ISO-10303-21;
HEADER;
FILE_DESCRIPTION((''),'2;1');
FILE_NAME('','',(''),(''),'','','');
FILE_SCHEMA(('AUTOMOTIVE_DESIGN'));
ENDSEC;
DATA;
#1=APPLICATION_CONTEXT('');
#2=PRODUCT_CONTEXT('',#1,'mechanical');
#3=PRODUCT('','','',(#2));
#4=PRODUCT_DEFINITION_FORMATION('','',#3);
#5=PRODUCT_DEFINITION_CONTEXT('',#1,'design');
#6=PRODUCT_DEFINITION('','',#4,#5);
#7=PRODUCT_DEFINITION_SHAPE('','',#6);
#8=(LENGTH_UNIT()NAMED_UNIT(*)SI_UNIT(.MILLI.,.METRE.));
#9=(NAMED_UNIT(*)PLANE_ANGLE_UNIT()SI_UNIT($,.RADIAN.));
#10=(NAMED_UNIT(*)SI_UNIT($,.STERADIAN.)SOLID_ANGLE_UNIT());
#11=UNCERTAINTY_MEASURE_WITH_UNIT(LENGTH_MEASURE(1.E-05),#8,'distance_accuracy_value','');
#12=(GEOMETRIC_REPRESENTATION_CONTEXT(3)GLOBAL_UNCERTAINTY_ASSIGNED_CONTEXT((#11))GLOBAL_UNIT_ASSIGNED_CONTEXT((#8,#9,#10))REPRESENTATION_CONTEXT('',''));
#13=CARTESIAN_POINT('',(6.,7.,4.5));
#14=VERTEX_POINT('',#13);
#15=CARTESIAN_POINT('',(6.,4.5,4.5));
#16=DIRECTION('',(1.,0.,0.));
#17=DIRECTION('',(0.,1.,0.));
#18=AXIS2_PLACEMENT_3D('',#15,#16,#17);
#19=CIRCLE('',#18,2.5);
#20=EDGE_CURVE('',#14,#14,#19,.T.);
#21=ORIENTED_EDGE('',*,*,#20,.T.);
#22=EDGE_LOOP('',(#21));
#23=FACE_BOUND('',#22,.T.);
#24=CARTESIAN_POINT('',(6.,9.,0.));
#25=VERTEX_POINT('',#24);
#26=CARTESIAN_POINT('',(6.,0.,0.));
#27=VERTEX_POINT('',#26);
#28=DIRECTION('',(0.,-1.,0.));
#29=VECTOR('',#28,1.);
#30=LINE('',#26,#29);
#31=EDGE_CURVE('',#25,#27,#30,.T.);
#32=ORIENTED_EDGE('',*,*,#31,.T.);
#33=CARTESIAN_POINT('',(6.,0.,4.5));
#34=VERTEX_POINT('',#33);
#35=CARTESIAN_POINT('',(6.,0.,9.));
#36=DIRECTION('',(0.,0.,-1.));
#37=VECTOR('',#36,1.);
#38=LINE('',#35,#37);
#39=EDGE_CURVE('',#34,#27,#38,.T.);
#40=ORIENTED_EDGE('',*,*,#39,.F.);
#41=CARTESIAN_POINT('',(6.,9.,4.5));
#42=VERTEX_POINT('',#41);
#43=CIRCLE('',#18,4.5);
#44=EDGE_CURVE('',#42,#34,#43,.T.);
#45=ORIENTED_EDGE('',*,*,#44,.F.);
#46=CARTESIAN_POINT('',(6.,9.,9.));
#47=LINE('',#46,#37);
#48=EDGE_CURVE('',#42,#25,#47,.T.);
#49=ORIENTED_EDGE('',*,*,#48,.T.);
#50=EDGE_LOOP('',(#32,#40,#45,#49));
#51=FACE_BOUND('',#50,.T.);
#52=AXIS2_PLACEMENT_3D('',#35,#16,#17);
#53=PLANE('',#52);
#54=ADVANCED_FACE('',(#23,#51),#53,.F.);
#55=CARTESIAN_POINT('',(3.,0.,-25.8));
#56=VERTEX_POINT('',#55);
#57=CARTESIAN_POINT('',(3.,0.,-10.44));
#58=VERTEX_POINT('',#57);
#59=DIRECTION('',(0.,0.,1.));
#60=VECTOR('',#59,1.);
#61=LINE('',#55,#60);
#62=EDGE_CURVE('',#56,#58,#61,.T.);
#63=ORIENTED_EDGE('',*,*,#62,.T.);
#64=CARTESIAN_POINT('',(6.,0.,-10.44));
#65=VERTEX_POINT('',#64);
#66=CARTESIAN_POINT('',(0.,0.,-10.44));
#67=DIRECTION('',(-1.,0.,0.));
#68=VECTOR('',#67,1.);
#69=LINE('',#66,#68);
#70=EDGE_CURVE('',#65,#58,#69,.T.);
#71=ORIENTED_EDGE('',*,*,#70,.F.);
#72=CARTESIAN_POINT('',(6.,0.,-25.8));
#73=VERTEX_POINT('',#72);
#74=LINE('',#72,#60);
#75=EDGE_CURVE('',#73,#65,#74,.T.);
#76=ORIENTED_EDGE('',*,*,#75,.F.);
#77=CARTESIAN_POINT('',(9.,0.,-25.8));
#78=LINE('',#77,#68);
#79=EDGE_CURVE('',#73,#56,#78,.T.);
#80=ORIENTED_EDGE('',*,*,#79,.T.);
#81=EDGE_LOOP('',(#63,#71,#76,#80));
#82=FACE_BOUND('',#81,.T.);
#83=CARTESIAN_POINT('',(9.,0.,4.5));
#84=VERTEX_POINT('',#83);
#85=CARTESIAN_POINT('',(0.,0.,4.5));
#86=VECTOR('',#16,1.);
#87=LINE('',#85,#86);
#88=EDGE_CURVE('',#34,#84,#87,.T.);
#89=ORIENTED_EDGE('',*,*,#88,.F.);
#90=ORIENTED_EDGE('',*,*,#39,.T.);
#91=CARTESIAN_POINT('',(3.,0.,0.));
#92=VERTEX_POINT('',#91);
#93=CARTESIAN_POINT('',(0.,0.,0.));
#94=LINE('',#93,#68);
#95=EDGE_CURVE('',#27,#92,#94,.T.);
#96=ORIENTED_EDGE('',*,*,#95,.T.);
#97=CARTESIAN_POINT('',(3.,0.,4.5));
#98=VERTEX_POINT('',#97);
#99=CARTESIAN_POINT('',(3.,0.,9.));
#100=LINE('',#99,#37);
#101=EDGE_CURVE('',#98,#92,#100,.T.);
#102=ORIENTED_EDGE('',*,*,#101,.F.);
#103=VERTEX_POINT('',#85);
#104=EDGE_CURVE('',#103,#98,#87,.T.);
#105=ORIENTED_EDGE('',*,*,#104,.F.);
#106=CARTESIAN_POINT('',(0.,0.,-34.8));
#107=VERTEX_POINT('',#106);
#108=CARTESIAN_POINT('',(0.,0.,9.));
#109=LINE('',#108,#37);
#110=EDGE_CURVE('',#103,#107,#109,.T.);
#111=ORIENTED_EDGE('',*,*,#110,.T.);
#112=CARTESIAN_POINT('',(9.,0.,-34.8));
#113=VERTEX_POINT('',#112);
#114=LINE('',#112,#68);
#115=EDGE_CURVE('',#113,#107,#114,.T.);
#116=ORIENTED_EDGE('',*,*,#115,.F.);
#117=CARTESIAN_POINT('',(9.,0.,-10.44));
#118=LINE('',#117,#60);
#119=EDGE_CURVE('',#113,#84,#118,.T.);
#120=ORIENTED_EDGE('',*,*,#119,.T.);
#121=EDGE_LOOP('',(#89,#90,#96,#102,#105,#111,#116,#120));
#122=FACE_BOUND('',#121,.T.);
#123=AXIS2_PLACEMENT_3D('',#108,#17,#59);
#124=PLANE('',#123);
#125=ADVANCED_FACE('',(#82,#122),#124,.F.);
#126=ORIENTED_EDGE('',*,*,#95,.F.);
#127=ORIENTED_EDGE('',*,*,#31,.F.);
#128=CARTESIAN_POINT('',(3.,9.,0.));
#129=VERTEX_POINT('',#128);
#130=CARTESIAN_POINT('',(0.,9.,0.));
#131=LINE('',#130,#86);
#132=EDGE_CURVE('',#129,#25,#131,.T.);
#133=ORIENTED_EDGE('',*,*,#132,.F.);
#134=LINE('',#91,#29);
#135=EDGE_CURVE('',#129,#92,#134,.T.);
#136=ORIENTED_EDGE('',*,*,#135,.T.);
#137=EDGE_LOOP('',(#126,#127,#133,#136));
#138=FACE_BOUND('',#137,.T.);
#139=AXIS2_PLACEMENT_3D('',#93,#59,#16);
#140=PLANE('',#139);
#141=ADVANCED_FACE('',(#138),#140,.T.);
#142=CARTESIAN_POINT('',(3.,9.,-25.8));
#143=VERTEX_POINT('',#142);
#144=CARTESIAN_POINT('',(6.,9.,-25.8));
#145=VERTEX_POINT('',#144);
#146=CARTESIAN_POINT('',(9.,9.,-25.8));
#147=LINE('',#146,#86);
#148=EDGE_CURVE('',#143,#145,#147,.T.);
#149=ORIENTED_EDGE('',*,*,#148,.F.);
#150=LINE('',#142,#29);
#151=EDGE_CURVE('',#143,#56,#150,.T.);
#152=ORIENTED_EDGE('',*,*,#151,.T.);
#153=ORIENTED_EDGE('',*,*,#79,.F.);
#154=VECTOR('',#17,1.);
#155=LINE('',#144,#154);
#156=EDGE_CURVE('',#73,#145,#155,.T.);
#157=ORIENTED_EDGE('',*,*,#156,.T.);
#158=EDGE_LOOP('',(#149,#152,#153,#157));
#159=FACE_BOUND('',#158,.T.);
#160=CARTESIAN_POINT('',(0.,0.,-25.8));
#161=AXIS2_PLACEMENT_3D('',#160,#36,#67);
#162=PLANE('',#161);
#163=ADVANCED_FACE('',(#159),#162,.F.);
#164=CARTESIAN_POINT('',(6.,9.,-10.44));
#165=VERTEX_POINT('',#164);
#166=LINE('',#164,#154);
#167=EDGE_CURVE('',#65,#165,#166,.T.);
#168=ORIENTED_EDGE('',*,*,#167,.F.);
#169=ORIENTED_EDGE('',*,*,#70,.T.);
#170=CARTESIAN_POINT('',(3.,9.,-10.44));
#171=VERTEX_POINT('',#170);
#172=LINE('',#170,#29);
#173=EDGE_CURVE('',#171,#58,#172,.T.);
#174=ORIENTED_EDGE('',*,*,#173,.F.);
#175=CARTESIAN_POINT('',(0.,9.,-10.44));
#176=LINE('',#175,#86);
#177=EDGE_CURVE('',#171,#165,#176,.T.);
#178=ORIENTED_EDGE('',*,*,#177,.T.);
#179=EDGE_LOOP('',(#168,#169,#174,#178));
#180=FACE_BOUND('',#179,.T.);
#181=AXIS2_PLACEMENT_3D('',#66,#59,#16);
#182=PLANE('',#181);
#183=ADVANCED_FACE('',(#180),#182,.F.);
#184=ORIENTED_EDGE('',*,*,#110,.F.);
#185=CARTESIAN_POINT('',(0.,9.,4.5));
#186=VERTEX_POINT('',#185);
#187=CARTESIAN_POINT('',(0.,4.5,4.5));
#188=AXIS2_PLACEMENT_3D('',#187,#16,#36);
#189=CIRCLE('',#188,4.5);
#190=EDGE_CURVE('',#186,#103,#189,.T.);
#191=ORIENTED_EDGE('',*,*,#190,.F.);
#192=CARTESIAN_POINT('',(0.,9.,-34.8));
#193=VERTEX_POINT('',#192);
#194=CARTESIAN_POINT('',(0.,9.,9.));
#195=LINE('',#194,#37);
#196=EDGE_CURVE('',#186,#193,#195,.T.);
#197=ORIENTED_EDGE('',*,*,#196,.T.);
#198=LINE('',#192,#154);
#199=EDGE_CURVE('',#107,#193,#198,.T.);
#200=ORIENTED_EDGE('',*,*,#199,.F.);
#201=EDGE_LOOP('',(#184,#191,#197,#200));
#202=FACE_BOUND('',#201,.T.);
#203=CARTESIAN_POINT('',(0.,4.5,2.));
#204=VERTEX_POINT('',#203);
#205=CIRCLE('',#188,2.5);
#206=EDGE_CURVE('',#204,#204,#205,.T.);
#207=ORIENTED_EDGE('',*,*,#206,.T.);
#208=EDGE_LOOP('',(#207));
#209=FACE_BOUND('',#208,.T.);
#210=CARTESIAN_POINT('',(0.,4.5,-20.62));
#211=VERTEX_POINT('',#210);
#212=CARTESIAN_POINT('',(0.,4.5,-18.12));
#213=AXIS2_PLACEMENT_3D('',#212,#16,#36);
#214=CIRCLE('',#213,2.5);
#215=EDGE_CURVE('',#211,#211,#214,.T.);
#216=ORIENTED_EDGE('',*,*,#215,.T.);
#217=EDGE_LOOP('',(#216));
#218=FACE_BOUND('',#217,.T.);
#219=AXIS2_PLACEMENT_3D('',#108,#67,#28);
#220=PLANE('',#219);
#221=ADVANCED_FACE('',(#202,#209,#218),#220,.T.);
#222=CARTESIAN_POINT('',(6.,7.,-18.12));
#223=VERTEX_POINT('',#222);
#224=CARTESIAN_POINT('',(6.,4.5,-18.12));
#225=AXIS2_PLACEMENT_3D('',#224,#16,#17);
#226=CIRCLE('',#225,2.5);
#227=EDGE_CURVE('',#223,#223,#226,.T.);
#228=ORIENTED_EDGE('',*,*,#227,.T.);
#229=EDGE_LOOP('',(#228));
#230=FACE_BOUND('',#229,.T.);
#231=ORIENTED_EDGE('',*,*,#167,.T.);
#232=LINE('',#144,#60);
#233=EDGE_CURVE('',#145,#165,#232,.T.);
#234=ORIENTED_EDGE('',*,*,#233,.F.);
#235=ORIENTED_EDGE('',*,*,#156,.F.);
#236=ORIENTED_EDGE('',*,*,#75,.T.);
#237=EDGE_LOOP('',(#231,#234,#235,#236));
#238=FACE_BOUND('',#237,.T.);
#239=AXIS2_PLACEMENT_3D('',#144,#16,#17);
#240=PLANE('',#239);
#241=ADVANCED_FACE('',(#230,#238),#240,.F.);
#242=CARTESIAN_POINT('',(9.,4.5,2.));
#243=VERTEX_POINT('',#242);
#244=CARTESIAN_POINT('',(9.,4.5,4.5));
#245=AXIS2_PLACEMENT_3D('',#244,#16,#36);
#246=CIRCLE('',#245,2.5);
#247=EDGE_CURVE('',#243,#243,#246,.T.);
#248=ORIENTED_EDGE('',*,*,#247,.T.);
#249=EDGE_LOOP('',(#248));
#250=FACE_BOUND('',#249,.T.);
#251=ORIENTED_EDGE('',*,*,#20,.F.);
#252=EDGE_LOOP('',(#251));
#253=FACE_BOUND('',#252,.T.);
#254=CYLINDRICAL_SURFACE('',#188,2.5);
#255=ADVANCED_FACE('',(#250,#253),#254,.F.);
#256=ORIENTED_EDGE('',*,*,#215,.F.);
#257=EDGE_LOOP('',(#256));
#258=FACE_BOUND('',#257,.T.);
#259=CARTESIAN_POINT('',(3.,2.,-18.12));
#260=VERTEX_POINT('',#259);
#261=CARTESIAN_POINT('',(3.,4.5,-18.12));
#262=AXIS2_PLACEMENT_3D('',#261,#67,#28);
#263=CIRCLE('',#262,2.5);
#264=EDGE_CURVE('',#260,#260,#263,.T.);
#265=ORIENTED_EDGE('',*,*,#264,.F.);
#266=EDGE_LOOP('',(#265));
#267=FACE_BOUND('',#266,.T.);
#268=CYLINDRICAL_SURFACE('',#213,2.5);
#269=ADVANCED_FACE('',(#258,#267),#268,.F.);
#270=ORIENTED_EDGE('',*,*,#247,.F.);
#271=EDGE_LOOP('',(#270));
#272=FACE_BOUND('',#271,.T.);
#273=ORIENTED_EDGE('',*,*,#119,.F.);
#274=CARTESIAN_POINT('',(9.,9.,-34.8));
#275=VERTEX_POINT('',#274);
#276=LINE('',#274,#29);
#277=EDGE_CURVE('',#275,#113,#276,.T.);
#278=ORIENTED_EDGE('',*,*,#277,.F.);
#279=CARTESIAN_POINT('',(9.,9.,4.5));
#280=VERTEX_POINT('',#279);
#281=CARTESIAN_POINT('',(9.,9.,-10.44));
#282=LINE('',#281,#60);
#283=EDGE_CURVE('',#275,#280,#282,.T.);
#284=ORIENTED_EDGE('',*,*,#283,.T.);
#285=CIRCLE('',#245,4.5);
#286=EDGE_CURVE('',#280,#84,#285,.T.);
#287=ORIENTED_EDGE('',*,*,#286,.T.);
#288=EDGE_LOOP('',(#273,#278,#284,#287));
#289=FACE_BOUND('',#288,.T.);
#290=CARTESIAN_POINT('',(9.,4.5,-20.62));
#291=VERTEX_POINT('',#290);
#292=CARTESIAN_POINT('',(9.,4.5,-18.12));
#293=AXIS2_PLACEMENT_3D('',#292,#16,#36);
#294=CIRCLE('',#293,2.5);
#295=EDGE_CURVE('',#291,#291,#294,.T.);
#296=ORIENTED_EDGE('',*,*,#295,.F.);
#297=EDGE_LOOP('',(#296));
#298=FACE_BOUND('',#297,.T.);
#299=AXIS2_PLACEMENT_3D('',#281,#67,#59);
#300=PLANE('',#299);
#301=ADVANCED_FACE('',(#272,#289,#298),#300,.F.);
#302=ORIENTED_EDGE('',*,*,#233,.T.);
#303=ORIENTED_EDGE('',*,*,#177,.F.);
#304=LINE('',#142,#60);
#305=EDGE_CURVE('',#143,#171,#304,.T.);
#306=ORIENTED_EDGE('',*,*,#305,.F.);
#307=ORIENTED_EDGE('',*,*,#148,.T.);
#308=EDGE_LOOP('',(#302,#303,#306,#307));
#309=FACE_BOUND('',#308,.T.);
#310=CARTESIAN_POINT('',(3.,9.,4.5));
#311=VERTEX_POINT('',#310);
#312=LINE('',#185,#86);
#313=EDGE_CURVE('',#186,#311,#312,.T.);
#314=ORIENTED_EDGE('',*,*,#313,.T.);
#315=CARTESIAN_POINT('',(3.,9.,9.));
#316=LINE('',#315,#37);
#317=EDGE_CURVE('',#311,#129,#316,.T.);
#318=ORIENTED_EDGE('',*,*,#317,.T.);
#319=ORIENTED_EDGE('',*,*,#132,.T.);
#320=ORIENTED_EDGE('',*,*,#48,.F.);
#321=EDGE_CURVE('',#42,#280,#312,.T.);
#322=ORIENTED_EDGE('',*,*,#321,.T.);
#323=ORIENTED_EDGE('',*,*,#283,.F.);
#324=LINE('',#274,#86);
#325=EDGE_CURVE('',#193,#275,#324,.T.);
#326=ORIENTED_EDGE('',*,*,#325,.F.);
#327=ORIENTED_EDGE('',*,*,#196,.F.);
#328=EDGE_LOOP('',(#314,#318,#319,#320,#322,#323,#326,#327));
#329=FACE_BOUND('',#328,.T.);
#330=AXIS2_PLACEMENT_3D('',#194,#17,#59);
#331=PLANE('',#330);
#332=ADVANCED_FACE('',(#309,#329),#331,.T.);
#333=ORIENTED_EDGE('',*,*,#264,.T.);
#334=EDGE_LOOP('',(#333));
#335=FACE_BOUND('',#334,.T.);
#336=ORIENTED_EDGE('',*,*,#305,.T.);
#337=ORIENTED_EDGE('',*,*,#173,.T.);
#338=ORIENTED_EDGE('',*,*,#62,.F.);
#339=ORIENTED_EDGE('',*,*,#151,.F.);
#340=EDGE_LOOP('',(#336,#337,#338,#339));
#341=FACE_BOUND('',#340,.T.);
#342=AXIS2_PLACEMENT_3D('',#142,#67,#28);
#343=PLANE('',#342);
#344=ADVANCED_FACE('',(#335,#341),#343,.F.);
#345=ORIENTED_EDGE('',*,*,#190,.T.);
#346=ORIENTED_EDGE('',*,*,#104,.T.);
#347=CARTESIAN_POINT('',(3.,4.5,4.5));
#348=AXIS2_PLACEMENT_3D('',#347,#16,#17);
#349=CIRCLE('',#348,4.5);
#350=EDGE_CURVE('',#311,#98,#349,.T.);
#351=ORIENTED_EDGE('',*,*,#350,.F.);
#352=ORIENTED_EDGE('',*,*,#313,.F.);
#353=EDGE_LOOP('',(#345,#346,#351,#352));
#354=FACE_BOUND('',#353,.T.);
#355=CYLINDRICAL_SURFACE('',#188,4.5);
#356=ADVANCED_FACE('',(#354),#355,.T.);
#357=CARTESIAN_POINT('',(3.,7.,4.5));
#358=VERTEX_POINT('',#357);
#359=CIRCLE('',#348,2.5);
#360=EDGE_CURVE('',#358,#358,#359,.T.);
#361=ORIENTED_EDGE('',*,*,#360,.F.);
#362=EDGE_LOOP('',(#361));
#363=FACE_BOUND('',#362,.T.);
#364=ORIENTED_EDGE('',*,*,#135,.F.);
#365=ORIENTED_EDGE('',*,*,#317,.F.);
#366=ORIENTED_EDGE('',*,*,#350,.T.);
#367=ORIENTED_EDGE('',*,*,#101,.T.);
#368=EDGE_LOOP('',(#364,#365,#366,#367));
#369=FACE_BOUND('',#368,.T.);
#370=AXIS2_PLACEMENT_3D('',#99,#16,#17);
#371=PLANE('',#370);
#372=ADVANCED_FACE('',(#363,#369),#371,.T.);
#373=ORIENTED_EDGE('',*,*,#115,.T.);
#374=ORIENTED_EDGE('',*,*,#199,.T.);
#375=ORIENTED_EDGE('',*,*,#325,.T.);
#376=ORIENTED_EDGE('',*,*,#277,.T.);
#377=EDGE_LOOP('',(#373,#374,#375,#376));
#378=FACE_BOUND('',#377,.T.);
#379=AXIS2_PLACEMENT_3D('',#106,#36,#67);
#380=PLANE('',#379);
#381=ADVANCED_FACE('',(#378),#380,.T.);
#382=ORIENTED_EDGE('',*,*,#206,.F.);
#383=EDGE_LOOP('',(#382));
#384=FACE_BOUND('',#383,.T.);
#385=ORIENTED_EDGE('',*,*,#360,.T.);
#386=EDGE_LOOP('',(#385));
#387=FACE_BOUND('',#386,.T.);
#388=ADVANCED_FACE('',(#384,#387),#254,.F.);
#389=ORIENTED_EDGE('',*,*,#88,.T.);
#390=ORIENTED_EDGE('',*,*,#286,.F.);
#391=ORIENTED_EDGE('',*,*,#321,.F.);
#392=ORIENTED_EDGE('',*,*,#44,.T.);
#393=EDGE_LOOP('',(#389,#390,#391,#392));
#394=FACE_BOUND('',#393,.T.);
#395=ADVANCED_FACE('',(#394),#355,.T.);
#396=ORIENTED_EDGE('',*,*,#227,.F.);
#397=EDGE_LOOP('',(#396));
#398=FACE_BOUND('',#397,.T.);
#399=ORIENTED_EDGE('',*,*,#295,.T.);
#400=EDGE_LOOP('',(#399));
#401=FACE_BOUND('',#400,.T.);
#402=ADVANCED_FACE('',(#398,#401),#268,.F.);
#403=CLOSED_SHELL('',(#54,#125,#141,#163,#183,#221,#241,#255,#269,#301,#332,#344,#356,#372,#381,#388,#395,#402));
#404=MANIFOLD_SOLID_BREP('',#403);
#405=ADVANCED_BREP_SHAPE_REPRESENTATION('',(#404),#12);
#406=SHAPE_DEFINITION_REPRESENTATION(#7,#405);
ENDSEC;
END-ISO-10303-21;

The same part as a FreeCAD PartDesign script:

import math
import FreeCAD as App
import Part
import Sketcher

V = App.Vector


def add_polygon(sketch, points):
    """Adds a closed chain of lines whose ends are joined by coincident constraints."""
    first, n = sketch.GeometryCount, len(points)
    for a, b in zip(points, points[1:] + points[:1]):
        sketch.addGeometry(Part.LineSegment(App.Vector(*a, 0), App.Vector(*b, 0)), False)
    for i in range(n):
        sketch.addConstraint(Sketcher.Constraint("Coincident", first + i, 2, first + (i + 1) % n, 1))

doc = App.newDocument("Part")
body = doc.addObject("PartDesign::Body", "Body")

# Sketch on XY plane
sketch1 = body.newObject("Sketcher::SketchObject", "Sketch")
sketch1.AttachmentSupport = (doc.getObject("XY_Plane"), [""])
sketch1.MapMode = "FlatFace"
add_polygon(sketch1, [(0, 9), (0, 0), (3, 0), (3, 9)])  # lines 0-3
sketch1.addConstraint([
    Sketcher.Constraint("Vertical", 0),
    Sketcher.Constraint("Horizontal", 1),
    Sketcher.Constraint("Vertical", 2),
    Sketcher.Constraint("Horizontal", 3),
    Sketcher.Constraint("Coincident", 0, 2, -1, 1),
    Sketcher.Constraint("DistanceX", 1, 1, 1, 2, 3.0),
    Sketcher.Constraint("DistanceY", 0, 2, 0, 1, 9.0),
])
pad1 = body.newObject("PartDesign::Pad", "Pad")
pad1.Profile = sketch1
pad1.Length = 9
body2 = doc.addObject("PartDesign::Body", "Body001")

# Sketch on XY plane
sketch2 = body2.newObject("Sketcher::SketchObject", "Sketch001")
sketch2.AttachmentSupport = (doc.getObject("XY_Plane001"), [""])
sketch2.MapMode = "FlatFace"
add_polygon(sketch2, [(6, 9), (6, 0), (9, 0), (9, 9)])  # lines 0-3
sketch2.addConstraint([
    Sketcher.Constraint("Vertical", 0),
    Sketcher.Constraint("Horizontal", 1),
    Sketcher.Constraint("Vertical", 2),
    Sketcher.Constraint("Horizontal", 3),
    Sketcher.Constraint("PointOnObject", 0, 2, -1),
    Sketcher.Constraint("DistanceX", 1, 1, 1, 2, 3.0),
    Sketcher.Constraint("DistanceY", 0, 2, 0, 1, 9.0),
    Sketcher.Constraint("DistanceX", -1, 1, 0, 2, 6.0),
])
pad2 = body2.newObject("PartDesign::Pad", "Pad001")
pad2.Profile = sketch2
pad2.Length = 9
body.AllowCompound = True
doc.recompute()

boolean = body.newObject("PartDesign::Boolean", "Boolean")
boolean.Type = "Fuse"
boolean.addObjects([body2])

# Sketch on XY plane
sketch3 = body.newObject("Sketcher::SketchObject", "Sketch002")
sketch3.AttachmentSupport = (doc.getObject("XY_Plane"), [""])
sketch3.MapMode = "FlatFace"
add_polygon(sketch3, [(9, 9), (9, 0), (0, 0), (0, 9)])  # lines 0-3
sketch3.addConstraint([
    Sketcher.Constraint("Vertical", 0),
    Sketcher.Constraint("Horizontal", 1),
    Sketcher.Constraint("Vertical", 2),
    Sketcher.Constraint("Horizontal", 3),
    Sketcher.Constraint("Coincident", 1, 2, -1, 1),
    Sketcher.Constraint("Equal", 3, 0),
    Sketcher.Constraint("DistanceX", 1, 2, 1, 1, 9.0),
])
pad3 = body.newObject("PartDesign::Pad", "Pad002")
pad3.Profile = sketch3
pad3.Length = 10.44
pad3.Reversed = True

# Sketch on XY plane
sketch4 = body.newObject("Sketcher::SketchObject", "Sketch003")
sketch4.AttachmentSupport = (doc.getObject("XY_Plane"), [""])
sketch4.MapMode = "FlatFace"
sketch4.AttachmentOffset = App.Placement(V(0, 0, -10.44), App.Rotation())
add_polygon(sketch4, [(9, 9), (9, 0), (6, 0), (6, 9)])  # lines 0-3
add_polygon(sketch4, [(3, 9), (3, 0), (0, 0), (0, 9)])  # lines 4-7
sketch4.addConstraint([
    Sketcher.Constraint("Vertical", 0),
    Sketcher.Constraint("Horizontal", 1),
    Sketcher.Constraint("Vertical", 2),
    Sketcher.Constraint("Horizontal", 3),
    Sketcher.Constraint("Vertical", 4),
    Sketcher.Constraint("Horizontal", 5),
    Sketcher.Constraint("Vertical", 6),
    Sketcher.Constraint("Horizontal", 7),
    Sketcher.Constraint("Coincident", 5, 2, -1, 1),
    Sketcher.Constraint("PointOnObject", 0, 2, -1),
    Sketcher.Constraint("Horizontal", 3, 2, 6, 2),
    Sketcher.Constraint("Equal", 3, 5),
    Sketcher.Constraint("DistanceX", 1, 2, 1, 1, 3.0),
    Sketcher.Constraint("DistanceY", 0, 2, 0, 1, 9.0),
    Sketcher.Constraint("DistanceX", -1, 1, 0, 2, 9.0),
])
pad4 = body.newObject("PartDesign::Pad", "Pad003")
pad4.Profile = sketch4
pad4.Length = 15.36
pad4.Reversed = True

# Sketch on XY plane
sketch5 = body.newObject("Sketcher::SketchObject", "Sketch004")
sketch5.AttachmentSupport = (doc.getObject("XY_Plane"), [""])
sketch5.MapMode = "FlatFace"
sketch5.AttachmentOffset = App.Placement(V(0, 0, -25.8), App.Rotation())
add_polygon(sketch5, [(9, 9), (9, 0), (0, 0), (0, 9)])  # lines 0-3
sketch5.addConstraint([
    Sketcher.Constraint("Vertical", 0),
    Sketcher.Constraint("Horizontal", 1),
    Sketcher.Constraint("Vertical", 2),
    Sketcher.Constraint("Horizontal", 3),
    Sketcher.Constraint("Coincident", 1, 2, -1, 1),
    Sketcher.Constraint("Equal", 3, 0),
    Sketcher.Constraint("DistanceX", 1, 2, 1, 1, 9.0),
])
pad5 = body.newObject("PartDesign::Pad", "Pad004")
pad5.Profile = sketch5
pad5.Length = 9
pad5.Reversed = True

# Sketch on YZ plane
sketch6 = body.newObject("Sketcher::SketchObject", "Sketch005")
sketch6.AttachmentSupport = (doc.getObject("YZ_Plane"), [""])
sketch6.MapMode = "FlatFace"
sketch6.AttachmentOffset = App.Placement(V(0, 0, 9), App.Rotation())
sketch6.addGeometry(Part.Circle(V(4.5, -18.1, 0), V(0, 0, 1), 2.5), False)
sketch6.addConstraint([
    Sketcher.Constraint("Diameter", 0, 5.0),
    Sketcher.Constraint("DistanceX", -1, 1, 0, 3, 4.5),
    Sketcher.Constraint("DistanceY", 0, 3, -1, 1, 18.12),
])
pocket1 = body.newObject("PartDesign::Pocket", "Pocket")
pocket1.Profile = sketch6
pocket1.Type = "ThroughAll"

# Sketch on YZ plane
sketch7 = body.newObject("Sketcher::SketchObject", "Sketch006")
sketch7.AttachmentSupport = (doc.getObject("YZ_Plane"), [""])
sketch7.MapMode = "FlatFace"
sketch7.AttachmentOffset = App.Placement(V(0, 0, 9), App.Rotation())
sketch7.addGeometry([
    Part.ArcOfCircle(Part.Circle(V(4.5, 4.5, 0), V(0, 0, 1), 4.5), math.radians(0), math.radians(90)),  # 0
    Part.LineSegment(V(9, 4.5, 0), V(9, 9, 0)),  # 1
    Part.LineSegment(V(9, 9, 0), V(4.5, 9, 0)),  # 2
    Part.ArcOfCircle(Part.Circle(V(4.5, 4.5, 0), V(0, 0, 1), 4.5), math.radians(90), math.radians(180)),  # 3
    Part.LineSegment(V(4.5, 9, 0), V(0, 9, 0)),  # 4
    Part.LineSegment(V(0, 9, 0), V(0, 4.5, 0)),  # 5
    Part.ArcOfCircle(Part.Circle(V(4.5, 4.5, 0), V(0, 0, 1), 2.5), math.radians(-90), math.radians(0)),  # 6
    Part.ArcOfCircle(Part.Circle(V(4.5, 4.5, 0), V(0, 0, 1), 2.5), math.radians(0), math.radians(180)),  # 7
    Part.ArcOfCircle(Part.Circle(V(4.5, 4.5, 0), V(0, 0, 1), 2.5), math.radians(180), math.radians(270)),  # 8
], False)
sketch7.addConstraint([
    Sketcher.Constraint("Tangent", 0, 1, 1, 1),
    Sketcher.Constraint("Coincident", 1, 2, 2, 1),
    Sketcher.Constraint("Tangent", 2, 2, 0, 2),
    Sketcher.Constraint("Tangent", 3, 1, 4, 1),
    Sketcher.Constraint("Coincident", 4, 2, 5, 1),
    Sketcher.Constraint("Tangent", 5, 2, 3, 2),
    Sketcher.Constraint("Tangent", 6, 2, 7, 1),
    Sketcher.Constraint("Tangent", 7, 2, 8, 1),
    Sketcher.Constraint("Tangent", 8, 2, 6, 1),
    Sketcher.Constraint("Vertical", 1),
    Sketcher.Constraint("Horizontal", 2),
    Sketcher.Constraint("Horizontal", 4),
    Sketcher.Constraint("Vertical", 5),
    Sketcher.Constraint("Coincident", 3, 3, 0, 3),
    Sketcher.Constraint("Coincident", 6, 3, 0, 3),
    Sketcher.Constraint("Equal", 0, 3),
    Sketcher.Constraint("PointOnObject", 4, 2, -2),
    Sketcher.Constraint("Horizontal", 5, 2, 6, 2),
    Sketcher.Constraint("Horizontal", 6, 2, 7, 2),
    Sketcher.Constraint("Vertical", 3, 1, 8, 2),
    Sketcher.Constraint("Radius", 0, 4.5),
    Sketcher.Constraint("Radius", 6, 2.5),
    Sketcher.Constraint("DistanceY", -1, 1, 1, 2, 9.0),
])
pocket2 = body.newObject("PartDesign::Pocket", "Pocket001")
pocket2.Profile = sketch7
pocket2.Type = "ThroughAll"

doc.recompute()
